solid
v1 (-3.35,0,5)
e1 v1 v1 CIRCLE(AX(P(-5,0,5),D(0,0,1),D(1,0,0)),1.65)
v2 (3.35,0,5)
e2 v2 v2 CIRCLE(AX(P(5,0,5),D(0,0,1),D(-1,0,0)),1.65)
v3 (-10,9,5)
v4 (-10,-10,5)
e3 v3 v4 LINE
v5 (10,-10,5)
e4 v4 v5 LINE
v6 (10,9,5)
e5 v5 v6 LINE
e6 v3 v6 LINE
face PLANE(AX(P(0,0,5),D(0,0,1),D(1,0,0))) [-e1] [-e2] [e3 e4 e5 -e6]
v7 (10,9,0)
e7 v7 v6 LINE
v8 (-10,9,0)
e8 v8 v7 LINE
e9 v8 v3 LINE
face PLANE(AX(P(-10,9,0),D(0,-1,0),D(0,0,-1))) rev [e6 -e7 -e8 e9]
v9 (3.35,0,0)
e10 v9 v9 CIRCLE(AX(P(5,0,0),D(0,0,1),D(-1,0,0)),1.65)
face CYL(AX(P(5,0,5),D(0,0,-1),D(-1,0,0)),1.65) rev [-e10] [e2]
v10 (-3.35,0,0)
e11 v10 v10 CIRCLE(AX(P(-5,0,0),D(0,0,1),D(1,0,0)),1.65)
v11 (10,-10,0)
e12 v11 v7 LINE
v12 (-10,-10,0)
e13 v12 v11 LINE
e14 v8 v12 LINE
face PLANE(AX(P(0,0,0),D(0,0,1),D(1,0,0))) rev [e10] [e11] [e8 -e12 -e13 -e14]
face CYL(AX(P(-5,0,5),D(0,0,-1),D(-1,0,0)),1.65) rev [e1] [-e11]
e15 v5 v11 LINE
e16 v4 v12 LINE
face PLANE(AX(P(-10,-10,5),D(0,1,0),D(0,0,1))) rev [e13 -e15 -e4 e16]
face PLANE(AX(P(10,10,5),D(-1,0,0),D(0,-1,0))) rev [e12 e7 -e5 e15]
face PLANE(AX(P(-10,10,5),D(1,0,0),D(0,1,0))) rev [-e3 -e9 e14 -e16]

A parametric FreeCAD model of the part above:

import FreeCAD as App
import Part
import Sketcher

V = App.Vector
Q = App.Units.Quantity

doc = App.newDocument("Part")
body = doc.addObject("PartDesign::Body", "Body")

# Sketch on XY plane
sketch1 = body.newObject("Sketcher::SketchObject", "Sketch")
sketch1.AttachmentSupport = (doc.getObject("XY_Plane"), [""])
sketch1.MapMode = "FlatFace"
sketch1.addGeometry(Part.LineSegment(V(-10, 10, 0), V(-10, -10, 0)), False)
sketch1.addGeometry(Part.LineSegment(V(-10, -10, 0), V(10, -10, 0)), False)
sketch1.addGeometry(Part.LineSegment(V(10, -10, 0), V(10, 10, 0)), False)
sketch1.addGeometry(Part.LineSegment(V(10, 10, 0), V(-10, 10, 0)), False)
sketch1.addGeometry(Part.Circle(V(-5, 0, 0), V(0, 0, 1), 1.6), False)
sketch1.addGeometry(Part.Circle(V(5, 0, 0), V(0, 0, 1), 1.6), False)
sketch1.addConstraint(Sketcher.Constraint("Coincident", 0, 2, 1, 1))
sketch1.addConstraint(Sketcher.Constraint("Coincident", 1, 2, 2, 1))
sketch1.addConstraint(Sketcher.Constraint("Coincident", 2, 2, 3, 1))
sketch1.addConstraint(Sketcher.Constraint("Coincident", 3, 2, 0, 1))
sketch1.addConstraint(Sketcher.Constraint("Vertical", 0))
sketch1.addConstraint(Sketcher.Constraint("Horizontal", 1))
sketch1.addConstraint(Sketcher.Constraint("Vertical", 2))
sketch1.addConstraint(Sketcher.Constraint("Horizontal", 3))
sketch1.addConstraint(Sketcher.Constraint("Equal", 4, 5))
sketch1.addConstraint(Sketcher.Constraint("Symmetric", 4, 3, 5, 3, -1, 1))
sketch1.addConstraint(Sketcher.Constraint("Symmetric", 0, 2, 2, 2, -1, 1))
sketch1.addConstraint(Sketcher.Constraint("PointOnObject", 4, 3, -1))
sketch1.addConstraint(Sketcher.Constraint("Equal", 3, 0))
sketch1.addConstraint(Sketcher.Constraint("Diameter", 4, Q("3.3 mm")))
sketch1.addConstraint(Sketcher.Constraint("DistanceX", 1, 1, 1, 2, Q("20 mm")))
sketch1.addConstraint(Sketcher.Constraint("DistanceX", 4, 3, -1, 1, Q("5 mm")))
pad1 = body.newObject("PartDesign::Pad", "Pad")
pad1.Profile = sketch1
pad1.Length = 5

# Sketch on XY plane
sketch2 = body.newObject("Sketcher::SketchObject", "Sketch001")
sketch2.AttachmentSupport = (doc.getObject("XY_Plane"), [""])
sketch2.MapMode = "FlatFace"
sketch2.AttachmentOffset = App.Placement(V(0, 0, 5), App.Rotation())
sketch2.addGeometry(Part.LineSegment(V(-10, 10, 0), V(-10, 9, 0)), False)
sketch2.addGeometry(Part.LineSegment(V(-10, 9, 0), V(10, 9, 0)), False)
sketch2.addGeometry(Part.LineSegment(V(10, 9, 0), V(10, 10, 0)), False)
sketch2.addGeometry(Part.LineSegment(V(10, 10, 0), V(-10, 10, 0)), False)
sketch2.addConstraint(Sketcher.Constraint("Coincident", 0, 2, 1, 1))
sketch2.addConstraint(Sketcher.Constraint("Coincident", 1, 2, 2, 1))
sketch2.addConstraint(Sketcher.Constraint("Coincident", 2, 2, 3, 1))
sketch2.addConstraint(Sketcher.Constraint("Coincident", 3, 2, 0, 1))
sketch2.addConstraint(Sketcher.Constraint("Vertical", 0))
sketch2.addConstraint(Sketcher.Constraint("Horizontal", 1))
sketch2.addConstraint(Sketcher.Constraint("Vertical", 2))
sketch2.addConstraint(Sketcher.Constraint("Horizontal", 3))
sketch2.addConstraint(Sketcher.Constraint("DistanceX", 1, 1, 1, 2, Q("20 mm")))
sketch2.addConstraint(Sketcher.Constraint("DistanceY", 0, 2, 0, 1, Q("1 mm")))
sketch2.addConstraint(Sketcher.Constraint("DistanceX", 0, 2, -1, 1, Q("10 mm")))
sketch2.addConstraint(Sketcher.Constraint("DistanceY", -1, 1, 0, 2, Q("9 mm")))
pocket1 = body.newObject("PartDesign::Pocket", "Pocket")
pocket1.Profile = sketch2
pocket1.Length = 5

doc.recompute()
